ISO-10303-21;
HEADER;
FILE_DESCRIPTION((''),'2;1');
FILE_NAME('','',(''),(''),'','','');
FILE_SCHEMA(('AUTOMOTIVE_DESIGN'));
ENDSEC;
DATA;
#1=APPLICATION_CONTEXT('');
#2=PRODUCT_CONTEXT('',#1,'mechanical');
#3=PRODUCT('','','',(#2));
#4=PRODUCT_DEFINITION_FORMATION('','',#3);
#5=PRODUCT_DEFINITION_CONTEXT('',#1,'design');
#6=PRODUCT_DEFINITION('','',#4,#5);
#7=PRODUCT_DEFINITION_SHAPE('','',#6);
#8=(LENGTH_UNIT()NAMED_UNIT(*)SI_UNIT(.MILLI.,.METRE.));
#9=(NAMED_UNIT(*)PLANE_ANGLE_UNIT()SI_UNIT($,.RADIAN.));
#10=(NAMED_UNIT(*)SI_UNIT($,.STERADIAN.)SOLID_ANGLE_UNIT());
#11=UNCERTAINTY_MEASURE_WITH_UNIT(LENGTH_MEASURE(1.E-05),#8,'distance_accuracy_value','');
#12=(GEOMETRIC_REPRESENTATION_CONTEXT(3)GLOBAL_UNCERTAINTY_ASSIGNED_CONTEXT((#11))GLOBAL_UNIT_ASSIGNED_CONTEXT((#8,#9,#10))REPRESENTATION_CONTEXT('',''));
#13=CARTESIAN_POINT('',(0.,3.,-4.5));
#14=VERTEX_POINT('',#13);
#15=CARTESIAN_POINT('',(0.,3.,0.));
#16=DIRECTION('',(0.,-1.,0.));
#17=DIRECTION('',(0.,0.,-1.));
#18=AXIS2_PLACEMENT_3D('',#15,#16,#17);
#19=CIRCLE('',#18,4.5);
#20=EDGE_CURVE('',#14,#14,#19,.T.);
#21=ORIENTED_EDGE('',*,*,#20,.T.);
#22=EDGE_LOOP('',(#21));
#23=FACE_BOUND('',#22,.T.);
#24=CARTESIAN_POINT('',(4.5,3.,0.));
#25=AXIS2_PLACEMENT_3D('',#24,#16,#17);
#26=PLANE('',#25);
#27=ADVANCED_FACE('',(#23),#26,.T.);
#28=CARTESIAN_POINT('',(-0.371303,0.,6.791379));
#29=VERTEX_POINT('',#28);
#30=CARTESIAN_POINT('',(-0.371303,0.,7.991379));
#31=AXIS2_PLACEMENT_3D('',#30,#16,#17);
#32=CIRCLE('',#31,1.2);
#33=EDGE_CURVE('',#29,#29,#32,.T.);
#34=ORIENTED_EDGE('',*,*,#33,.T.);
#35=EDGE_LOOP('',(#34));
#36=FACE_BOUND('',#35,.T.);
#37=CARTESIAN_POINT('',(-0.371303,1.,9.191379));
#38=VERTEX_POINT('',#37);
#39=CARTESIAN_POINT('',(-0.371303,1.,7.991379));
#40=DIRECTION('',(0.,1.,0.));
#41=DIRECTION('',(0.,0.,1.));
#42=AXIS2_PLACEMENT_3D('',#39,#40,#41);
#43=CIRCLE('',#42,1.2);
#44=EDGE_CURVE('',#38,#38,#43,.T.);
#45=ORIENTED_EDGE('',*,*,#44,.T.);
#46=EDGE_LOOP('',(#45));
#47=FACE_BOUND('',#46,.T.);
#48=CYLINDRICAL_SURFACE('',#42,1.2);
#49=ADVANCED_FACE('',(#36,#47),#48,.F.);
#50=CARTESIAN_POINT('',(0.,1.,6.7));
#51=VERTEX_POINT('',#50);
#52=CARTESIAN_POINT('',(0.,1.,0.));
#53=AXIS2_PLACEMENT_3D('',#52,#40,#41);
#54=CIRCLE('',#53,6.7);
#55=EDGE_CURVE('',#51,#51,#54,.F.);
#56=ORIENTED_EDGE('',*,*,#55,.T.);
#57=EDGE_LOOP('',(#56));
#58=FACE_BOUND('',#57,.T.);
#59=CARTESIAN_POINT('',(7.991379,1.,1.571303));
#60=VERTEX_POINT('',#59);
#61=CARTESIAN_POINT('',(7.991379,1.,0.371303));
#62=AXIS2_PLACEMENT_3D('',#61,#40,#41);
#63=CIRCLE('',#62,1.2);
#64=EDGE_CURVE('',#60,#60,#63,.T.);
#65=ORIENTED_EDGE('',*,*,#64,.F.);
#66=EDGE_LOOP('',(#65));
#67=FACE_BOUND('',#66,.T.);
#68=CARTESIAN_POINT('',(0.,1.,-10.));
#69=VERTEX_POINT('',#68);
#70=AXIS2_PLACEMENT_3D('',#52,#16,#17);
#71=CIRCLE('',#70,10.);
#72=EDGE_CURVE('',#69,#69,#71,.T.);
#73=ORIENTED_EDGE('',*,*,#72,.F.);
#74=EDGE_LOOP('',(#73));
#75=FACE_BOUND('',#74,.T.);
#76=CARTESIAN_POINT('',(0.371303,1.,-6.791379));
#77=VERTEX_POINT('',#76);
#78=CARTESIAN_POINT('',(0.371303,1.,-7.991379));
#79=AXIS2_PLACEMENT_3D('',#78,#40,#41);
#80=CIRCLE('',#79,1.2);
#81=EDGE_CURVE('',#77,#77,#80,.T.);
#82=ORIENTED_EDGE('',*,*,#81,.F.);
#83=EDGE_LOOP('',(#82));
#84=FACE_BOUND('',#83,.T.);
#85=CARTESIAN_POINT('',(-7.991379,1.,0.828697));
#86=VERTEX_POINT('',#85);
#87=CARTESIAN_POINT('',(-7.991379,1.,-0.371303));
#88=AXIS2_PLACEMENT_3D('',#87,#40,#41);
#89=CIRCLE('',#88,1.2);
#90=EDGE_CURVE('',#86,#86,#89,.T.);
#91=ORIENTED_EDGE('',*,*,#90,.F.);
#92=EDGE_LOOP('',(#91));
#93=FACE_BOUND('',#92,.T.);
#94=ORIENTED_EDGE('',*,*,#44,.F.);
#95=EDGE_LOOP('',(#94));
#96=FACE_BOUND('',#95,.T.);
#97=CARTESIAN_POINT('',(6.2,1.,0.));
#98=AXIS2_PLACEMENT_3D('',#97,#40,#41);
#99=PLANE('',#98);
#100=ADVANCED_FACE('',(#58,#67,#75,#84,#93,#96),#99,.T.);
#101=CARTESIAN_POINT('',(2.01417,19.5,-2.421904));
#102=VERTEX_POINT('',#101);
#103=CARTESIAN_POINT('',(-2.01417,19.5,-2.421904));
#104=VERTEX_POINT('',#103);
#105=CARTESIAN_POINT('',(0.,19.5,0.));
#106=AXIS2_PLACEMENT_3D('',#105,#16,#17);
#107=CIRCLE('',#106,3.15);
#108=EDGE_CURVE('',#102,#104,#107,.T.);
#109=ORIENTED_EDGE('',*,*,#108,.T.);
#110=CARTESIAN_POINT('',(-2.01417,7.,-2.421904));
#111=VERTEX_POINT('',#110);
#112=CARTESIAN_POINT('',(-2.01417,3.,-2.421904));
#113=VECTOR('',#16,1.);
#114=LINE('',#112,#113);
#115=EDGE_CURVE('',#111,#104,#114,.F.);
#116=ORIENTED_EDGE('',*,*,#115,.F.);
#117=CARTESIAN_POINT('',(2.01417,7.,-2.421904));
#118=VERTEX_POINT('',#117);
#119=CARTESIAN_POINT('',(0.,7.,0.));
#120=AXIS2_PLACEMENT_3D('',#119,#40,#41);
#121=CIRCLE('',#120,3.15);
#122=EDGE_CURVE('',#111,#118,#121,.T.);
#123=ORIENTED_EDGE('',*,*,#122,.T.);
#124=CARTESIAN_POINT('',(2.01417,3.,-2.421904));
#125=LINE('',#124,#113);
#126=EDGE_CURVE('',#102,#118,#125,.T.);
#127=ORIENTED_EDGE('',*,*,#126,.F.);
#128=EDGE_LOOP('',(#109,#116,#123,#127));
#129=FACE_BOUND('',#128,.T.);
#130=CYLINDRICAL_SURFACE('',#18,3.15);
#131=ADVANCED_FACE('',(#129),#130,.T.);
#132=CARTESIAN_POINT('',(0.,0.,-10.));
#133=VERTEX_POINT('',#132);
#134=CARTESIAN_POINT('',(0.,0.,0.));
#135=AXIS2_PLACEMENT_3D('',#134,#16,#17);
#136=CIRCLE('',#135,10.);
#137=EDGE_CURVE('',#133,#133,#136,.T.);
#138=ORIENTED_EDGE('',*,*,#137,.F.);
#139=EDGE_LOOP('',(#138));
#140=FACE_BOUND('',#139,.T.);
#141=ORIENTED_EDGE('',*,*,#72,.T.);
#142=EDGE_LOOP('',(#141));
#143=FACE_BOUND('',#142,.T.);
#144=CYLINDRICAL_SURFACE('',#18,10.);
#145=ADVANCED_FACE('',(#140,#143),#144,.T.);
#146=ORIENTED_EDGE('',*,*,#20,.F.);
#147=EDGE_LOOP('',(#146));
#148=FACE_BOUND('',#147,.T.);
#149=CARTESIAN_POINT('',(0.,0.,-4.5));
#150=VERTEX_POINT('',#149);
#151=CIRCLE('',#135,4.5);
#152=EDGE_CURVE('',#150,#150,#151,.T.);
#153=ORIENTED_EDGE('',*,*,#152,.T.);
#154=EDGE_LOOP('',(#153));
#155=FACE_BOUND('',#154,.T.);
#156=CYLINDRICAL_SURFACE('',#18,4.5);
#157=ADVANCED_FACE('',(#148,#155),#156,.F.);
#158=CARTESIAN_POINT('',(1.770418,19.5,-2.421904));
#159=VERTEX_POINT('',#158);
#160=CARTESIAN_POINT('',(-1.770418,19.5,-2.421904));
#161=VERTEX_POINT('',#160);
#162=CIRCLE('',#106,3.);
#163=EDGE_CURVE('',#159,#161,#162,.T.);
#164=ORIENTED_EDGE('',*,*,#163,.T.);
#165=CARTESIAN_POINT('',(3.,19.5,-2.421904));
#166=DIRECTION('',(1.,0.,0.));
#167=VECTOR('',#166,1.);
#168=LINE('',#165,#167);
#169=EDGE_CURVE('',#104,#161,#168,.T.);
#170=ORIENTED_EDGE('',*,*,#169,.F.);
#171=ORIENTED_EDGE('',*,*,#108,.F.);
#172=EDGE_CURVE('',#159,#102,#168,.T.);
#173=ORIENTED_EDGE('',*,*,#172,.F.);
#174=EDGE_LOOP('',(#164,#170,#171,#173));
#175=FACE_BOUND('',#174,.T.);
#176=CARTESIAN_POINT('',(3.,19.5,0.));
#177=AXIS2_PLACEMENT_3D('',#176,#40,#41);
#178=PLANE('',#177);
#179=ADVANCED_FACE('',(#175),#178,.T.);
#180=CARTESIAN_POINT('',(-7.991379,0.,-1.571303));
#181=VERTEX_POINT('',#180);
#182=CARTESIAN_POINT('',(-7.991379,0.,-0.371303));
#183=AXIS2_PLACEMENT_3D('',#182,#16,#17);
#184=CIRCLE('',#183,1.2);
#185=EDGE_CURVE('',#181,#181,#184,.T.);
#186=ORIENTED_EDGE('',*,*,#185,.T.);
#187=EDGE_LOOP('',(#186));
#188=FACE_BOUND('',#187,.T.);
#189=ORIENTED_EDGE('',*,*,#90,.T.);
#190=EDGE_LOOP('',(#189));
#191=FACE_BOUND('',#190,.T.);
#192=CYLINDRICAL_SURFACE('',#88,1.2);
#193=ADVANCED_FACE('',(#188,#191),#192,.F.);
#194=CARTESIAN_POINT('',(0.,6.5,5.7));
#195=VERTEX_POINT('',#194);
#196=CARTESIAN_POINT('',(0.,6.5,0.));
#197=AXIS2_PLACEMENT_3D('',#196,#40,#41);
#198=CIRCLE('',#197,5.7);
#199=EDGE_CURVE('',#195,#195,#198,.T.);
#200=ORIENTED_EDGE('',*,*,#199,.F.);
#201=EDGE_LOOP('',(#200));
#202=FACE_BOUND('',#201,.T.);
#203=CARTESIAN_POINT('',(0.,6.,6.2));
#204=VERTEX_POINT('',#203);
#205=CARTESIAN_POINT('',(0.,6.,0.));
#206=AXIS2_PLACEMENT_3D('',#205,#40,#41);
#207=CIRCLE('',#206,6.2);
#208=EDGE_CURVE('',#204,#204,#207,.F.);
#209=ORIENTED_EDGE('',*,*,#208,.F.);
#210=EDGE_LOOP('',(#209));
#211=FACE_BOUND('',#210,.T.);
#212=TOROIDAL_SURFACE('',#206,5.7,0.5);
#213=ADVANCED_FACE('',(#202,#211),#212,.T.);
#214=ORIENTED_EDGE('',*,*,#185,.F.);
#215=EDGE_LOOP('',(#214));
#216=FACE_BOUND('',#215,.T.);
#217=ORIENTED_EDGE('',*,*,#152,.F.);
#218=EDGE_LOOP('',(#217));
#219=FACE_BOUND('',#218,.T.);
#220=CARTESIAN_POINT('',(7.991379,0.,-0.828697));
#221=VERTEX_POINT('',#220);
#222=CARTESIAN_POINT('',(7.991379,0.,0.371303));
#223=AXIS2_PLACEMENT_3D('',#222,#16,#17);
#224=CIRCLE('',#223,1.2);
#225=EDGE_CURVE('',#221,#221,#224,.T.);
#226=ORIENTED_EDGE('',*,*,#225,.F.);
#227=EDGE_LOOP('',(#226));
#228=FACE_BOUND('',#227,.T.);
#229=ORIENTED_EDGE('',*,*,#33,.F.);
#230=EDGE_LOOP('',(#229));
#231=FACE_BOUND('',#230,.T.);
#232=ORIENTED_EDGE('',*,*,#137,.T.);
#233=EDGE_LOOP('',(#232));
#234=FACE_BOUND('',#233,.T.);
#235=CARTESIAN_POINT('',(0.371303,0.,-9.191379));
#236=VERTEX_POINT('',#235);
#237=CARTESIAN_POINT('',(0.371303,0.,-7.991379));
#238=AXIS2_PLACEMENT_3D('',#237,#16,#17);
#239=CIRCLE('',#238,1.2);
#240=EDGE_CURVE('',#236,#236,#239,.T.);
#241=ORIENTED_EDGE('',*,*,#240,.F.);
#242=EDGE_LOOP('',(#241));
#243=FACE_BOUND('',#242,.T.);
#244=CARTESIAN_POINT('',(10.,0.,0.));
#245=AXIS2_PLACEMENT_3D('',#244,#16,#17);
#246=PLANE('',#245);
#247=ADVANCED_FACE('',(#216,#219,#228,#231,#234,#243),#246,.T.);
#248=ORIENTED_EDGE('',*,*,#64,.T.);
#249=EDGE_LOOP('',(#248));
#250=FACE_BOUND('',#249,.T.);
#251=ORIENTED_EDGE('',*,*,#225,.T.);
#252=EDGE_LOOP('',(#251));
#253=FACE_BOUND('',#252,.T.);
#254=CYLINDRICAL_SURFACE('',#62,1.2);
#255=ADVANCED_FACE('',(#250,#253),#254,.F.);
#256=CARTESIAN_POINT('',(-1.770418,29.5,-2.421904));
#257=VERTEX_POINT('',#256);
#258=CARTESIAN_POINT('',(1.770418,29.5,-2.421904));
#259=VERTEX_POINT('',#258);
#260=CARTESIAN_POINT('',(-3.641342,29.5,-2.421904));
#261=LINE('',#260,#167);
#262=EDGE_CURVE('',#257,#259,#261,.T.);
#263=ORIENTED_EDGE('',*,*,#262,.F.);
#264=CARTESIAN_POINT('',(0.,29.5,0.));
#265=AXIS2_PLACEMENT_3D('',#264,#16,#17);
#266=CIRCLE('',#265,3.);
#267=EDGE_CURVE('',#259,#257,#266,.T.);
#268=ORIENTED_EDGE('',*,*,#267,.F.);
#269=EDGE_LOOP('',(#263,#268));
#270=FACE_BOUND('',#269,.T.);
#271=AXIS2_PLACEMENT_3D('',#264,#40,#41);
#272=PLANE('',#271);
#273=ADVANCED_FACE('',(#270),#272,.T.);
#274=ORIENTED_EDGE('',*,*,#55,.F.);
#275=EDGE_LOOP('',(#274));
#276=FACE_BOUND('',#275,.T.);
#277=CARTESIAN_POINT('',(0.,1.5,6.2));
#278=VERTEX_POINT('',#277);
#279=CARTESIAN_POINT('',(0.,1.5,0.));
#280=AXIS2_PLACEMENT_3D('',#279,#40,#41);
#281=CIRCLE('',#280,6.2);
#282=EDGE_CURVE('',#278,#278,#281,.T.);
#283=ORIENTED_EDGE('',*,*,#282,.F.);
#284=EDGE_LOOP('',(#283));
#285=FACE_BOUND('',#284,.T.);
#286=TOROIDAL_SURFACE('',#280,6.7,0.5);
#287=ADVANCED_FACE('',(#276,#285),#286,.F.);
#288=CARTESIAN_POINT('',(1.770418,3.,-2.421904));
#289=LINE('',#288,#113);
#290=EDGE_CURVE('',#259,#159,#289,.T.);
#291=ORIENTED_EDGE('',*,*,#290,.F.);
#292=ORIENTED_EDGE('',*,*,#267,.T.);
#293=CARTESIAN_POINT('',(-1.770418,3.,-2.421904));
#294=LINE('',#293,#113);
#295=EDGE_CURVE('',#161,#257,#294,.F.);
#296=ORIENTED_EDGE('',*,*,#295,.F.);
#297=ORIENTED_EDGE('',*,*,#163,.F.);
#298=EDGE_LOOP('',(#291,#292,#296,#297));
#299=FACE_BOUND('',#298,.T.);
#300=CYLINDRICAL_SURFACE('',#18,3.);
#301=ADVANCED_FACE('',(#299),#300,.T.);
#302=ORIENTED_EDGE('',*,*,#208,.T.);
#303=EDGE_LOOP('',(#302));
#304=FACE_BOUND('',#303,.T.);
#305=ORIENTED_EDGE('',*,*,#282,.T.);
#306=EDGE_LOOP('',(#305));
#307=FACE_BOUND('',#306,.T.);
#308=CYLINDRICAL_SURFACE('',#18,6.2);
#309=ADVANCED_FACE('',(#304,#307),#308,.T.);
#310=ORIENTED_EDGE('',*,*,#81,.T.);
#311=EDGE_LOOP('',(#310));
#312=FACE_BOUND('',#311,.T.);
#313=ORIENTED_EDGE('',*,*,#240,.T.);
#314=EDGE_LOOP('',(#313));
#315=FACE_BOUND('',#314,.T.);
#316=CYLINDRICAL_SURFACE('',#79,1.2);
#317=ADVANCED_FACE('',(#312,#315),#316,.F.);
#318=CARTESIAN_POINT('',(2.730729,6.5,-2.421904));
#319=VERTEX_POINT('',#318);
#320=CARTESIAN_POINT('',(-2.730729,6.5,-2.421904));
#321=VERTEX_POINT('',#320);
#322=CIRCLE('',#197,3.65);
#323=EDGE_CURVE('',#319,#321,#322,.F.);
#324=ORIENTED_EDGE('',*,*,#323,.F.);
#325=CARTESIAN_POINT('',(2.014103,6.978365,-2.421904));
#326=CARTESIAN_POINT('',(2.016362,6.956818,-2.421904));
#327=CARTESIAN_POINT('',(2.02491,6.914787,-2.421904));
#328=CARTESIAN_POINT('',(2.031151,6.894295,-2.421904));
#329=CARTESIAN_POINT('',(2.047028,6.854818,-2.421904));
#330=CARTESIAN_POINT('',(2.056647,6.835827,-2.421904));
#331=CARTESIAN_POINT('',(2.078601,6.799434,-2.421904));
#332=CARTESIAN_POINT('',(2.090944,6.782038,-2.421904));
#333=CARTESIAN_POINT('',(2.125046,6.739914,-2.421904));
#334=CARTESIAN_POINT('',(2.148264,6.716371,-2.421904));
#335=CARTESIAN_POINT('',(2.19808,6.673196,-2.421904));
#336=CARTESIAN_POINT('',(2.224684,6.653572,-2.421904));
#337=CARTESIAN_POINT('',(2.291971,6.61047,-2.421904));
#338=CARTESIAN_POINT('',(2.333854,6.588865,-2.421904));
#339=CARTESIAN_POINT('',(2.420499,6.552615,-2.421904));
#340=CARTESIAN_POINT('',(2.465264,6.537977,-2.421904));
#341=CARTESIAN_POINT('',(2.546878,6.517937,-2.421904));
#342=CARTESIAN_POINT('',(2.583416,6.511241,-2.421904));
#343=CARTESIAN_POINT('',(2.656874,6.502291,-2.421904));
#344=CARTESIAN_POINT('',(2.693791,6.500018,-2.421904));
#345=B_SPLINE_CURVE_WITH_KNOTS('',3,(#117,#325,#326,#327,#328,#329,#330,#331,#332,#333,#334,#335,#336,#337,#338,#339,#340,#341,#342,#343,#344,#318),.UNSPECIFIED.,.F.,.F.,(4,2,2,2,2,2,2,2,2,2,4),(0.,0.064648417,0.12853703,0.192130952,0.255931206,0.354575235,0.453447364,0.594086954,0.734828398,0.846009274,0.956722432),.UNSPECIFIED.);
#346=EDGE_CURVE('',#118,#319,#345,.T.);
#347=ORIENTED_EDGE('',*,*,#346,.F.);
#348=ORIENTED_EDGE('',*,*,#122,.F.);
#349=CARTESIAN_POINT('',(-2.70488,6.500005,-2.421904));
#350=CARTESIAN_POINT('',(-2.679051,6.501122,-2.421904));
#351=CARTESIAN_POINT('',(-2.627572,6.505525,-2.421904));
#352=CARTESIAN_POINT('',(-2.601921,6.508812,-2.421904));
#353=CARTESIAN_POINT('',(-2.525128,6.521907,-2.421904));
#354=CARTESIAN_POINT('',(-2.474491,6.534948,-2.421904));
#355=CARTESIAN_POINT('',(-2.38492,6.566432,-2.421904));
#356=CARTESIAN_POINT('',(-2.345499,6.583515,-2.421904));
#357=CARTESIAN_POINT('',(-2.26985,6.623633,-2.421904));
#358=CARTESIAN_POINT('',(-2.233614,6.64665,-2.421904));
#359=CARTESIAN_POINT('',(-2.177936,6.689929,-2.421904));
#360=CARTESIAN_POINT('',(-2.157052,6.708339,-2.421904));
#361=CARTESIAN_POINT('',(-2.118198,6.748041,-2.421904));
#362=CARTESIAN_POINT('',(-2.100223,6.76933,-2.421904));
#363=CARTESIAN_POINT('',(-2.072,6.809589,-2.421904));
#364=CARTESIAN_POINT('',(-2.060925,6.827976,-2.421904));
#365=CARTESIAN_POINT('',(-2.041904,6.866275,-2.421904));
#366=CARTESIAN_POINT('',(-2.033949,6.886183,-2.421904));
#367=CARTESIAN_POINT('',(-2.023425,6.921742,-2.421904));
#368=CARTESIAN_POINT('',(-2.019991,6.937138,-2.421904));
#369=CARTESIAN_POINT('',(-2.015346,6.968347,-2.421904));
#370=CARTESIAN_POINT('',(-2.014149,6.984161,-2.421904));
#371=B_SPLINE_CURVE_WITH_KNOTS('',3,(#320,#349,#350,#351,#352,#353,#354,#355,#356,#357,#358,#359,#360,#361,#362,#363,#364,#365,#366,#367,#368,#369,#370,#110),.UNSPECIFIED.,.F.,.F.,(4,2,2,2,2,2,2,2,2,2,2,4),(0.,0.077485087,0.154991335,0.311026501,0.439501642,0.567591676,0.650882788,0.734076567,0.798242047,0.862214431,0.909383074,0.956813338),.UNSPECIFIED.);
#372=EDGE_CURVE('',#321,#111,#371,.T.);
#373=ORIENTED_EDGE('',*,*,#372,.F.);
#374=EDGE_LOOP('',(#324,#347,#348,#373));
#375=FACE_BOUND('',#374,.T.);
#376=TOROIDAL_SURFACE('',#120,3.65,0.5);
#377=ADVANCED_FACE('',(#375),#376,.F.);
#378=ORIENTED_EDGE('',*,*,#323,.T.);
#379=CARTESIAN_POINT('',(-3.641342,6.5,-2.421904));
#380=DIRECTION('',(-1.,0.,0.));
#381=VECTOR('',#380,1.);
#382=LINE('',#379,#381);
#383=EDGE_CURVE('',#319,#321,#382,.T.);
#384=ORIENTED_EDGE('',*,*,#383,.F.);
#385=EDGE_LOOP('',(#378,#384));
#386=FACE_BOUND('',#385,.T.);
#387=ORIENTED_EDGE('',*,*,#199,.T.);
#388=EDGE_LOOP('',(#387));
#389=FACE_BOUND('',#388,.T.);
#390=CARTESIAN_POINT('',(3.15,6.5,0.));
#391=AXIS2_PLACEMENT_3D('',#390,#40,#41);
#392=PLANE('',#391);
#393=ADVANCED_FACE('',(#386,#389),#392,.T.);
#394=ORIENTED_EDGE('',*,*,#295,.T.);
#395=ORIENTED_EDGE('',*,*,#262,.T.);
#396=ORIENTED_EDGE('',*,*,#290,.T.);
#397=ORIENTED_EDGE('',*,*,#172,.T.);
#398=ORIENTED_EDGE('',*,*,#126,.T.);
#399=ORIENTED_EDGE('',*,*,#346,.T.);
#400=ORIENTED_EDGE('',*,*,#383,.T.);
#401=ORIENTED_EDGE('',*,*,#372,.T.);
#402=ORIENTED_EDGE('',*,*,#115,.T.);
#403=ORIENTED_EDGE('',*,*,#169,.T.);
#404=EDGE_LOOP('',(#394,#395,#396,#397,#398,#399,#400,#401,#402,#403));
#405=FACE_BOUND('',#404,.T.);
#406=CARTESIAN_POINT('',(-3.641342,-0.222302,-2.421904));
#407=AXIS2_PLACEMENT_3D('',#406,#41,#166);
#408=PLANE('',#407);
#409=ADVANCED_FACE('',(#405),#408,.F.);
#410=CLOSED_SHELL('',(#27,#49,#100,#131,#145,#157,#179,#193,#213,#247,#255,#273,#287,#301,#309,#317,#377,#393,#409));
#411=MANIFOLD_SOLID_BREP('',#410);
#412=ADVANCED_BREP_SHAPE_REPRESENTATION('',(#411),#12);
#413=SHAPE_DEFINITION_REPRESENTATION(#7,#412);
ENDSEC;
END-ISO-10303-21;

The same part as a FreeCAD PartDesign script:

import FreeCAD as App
import Part
import Sketcher

V = App.Vector
Q = App.Units.Quantity


def edges_at(feature, points):
    """Names of the edges that pass closest to the given points."""
    edges = feature.Shape.Edges
    near = lambda p: min(range(len(edges)), key=lambda i: edges[i].distToShape(Part.Vertex(*p))[0])
    return sorted({f"Edge{near(p) + 1}" for p in points})

doc = App.newDocument("Part")
body = doc.addObject("PartDesign::Body", "Body")

sketch1 = body.newObject("Sketcher::SketchObject", "Sketch")
sketch1.AttachmentSupport = (doc.getObject("XY_Plane"), [""])
sketch1.MapMode = "FlatFace"
sketch1.addGeometry([
    Part.LineSegment(V(3, 29.5, 0), V(0, 29.5, 0)),
    Part.LineSegment(V(0, 29.5, 0), V(0, 3, 0)),
    Part.LineSegment(V(0, 3, 0), V(4.5, 3, 0)),
    Part.LineSegment(V(4.5, 3, 0), V(4.5, 0, 0)),
    Part.LineSegment(V(4.5, 0, 0), V(10, 0, 0)),
    Part.LineSegment(V(10, 0, 0), V(10, 1, 0)),
    Part.LineSegment(V(10, 1, 0), V(6.2, 1, 0)),
    Part.LineSegment(V(6.2, 1, 0), V(6.2, 6.5, 0)),
    Part.LineSegment(V(6.2, 6.5, 0), V(3.15, 6.5, 0)),
    Part.LineSegment(V(3.15, 6.5, 0), V(3.15, 19.5, 0)),
    Part.LineSegment(V(3.15, 19.5, 0), V(3, 19.5, 0)),
    Part.LineSegment(V(3, 19.5, 0), V(3, 29.5, 0)),
], False)
sketch1.addConstraint([
    Sketcher.Constraint("Coincident", 0, 2, 1, 1),
    Sketcher.Constraint("Coincident", 1, 2, 2, 1),
    Sketcher.Constraint("Coincident", 2, 2, 3, 1),
    Sketcher.Constraint("Coincident", 3, 2, 4, 1),
    Sketcher.Constraint("Coincident", 4, 2, 5, 1),
    Sketcher.Constraint("Coincident", 5, 2, 6, 1),
    Sketcher.Constraint("Coincident", 6, 2, 7, 1),
    Sketcher.Constraint("Coincident", 7, 2, 8, 1),
    Sketcher.Constraint("Coincident", 8, 2, 9, 1),
    Sketcher.Constraint("Coincident", 9, 2, 10, 1),
    Sketcher.Constraint("Coincident", 10, 2, 11, 1),
    Sketcher.Constraint("Coincident", 11, 2, 0, 1),
    Sketcher.Constraint("Horizontal", 0),
    Sketcher.Constraint("Vertical", 1),
    Sketcher.Constraint("Horizontal", 2),
    Sketcher.Constraint("Vertical", 3),
    Sketcher.Constraint("Horizontal", 4),
    Sketcher.Constraint("Vertical", 5),
    Sketcher.Constraint("Horizontal", 6),
    Sketcher.Constraint("Vertical", 7),
    Sketcher.Constraint("Horizontal", 8),
    Sketcher.Constraint("Vertical", 9),
    Sketcher.Constraint("Horizontal", 10),
    Sketcher.Constraint("Vertical", 11),
    Sketcher.Constraint("PointOnObject", 0, 2, -2),
    Sketcher.Constraint("PointOnObject", 3, 2, -1),
    Sketcher.Constraint("Equal", 0, 3),
    Sketcher.Constraint("Equal", 4, 7),
    Sketcher.Constraint("DistanceX", 0, 2, 0, 1, Q("3 mm")),
    Sketcher.Constraint("DistanceY", 5, 1, 5, 2, Q("1 mm")),
    Sketcher.Constraint("DistanceY", 9, 1, 9, 2, Q("13 mm")),
    Sketcher.Constraint("DistanceY", 11, 1, 11, 2, Q("10 mm")),
    Sketcher.Constraint("DistanceX", 2, 1, 2, 2, Q("4.5 mm")),
    Sketcher.Constraint("DistanceX", 4, 1, 4, 2, Q("5.5 mm")),
    Sketcher.Constraint("DistanceX", 6, 2, 6, 1, Q("3.8 mm")),
    Sketcher.Constraint("DistanceX", 8, 2, 8, 1, Q("3.05 mm")),
])
revolution = body.newObject("PartDesign::Revolution", "Revolution")
revolution.Profile = sketch1
revolution.ReferenceAxis = (sketch1, ["V_Axis"])
revolution.Angle = 360

sketch2 = body.newObject("Sketcher::SketchObject", "Sketch001")
sketch2.AttachmentSupport = (doc.getObject("XZ_Plane"), [""])
sketch2.MapMode = "FlatFace"
sketch2.AttachmentOffset = App.Placement(V(0, 0, -29.5), App.Rotation())
sketch2.addGeometry([
    Part.LineSegment(V(-3.641342, -3.807953, 0), V(-3.641342, -2.421904, 0)),
    Part.LineSegment(V(-3.641342, -2.421904, 0), V(2.936515, -2.421904, 0)),
    Part.LineSegment(V(2.936515, -2.421904, 0), V(2.936515, -3.807953, 0)),
    Part.LineSegment(V(2.936515, -3.807953, 0), V(-3.641342, -3.807953, 0)),
], False)
sketch2.addConstraint([
    Sketcher.Constraint("Coincident", 0, 2, 1, 1),
    Sketcher.Constraint("Coincident", 1, 2, 2, 1),
    Sketcher.Constraint("Coincident", 2, 2, 3, 1),
    Sketcher.Constraint("Coincident", 3, 2, 0, 1),
    Sketcher.Constraint("Vertical", 0),
    Sketcher.Constraint("Horizontal", 1),
    Sketcher.Constraint("Vertical", 2),
    Sketcher.Constraint("Horizontal", 3),
    Sketcher.Constraint("DistanceY", 0, 1, 0, 2, Q("1.386049 mm")),
    Sketcher.Constraint("DistanceX", 1, 1, 1, 2, Q("6.577858 mm")),
    Sketcher.Constraint("DistanceX", 0, 2, -1, 1, Q("3.641342 mm")),
    Sketcher.Constraint("DistanceY", 0, 2, -1, 1, Q("2.421904 mm")),
])
pocket1 = body.newObject("PartDesign::Pocket", "Pocket")
pocket1.Profile = sketch2
pocket1.Length = 23
pocket1.Reversed = True

sketch3 = body.newObject("Sketcher::SketchObject", "Sketch002")
sketch3.AttachmentSupport = (doc.getObject("XZ_Plane"), [""])
sketch3.MapMode = "FlatFace"
sketch3.AttachmentOffset = App.Placement(V(0, 0, -1), App.Rotation())
sketch3.addGeometry(Part.Circle(V(0.371303, -7.991379, 0), V(0, 0, 1), 1.2), False)
sketch3.addConstraint([
    Sketcher.Constraint("Diameter", 0, Q("2.4 mm")),
    Sketcher.Constraint("DistanceY", 0, 3, -1, 1, Q("7.991379 mm")),
    Sketcher.Constraint("DistanceX", -1, 1, 0, 3, Q("0.371303 mm")),
])
doc.recompute()
hole = body.newObject("PartDesign::Hole", "Hole")
hole.Profile = sketch3
hole.ThreadType = "None"
hole.Diameter = 2.4
hole.DepthType = "Dimension"
hole.Depth = 1.001
hole.DrillPoint = "Flat"
hole.Reversed = True
doc.recompute()

polarpattern = body.newObject("PartDesign::PolarPattern", "PolarPattern")
polarpattern.Originals = [hole]
polarpattern.Axis = (doc.getObject("Y_Axis"), [""])
polarpattern.Angle = 360
polarpattern.Occurrences = 4
body.Tip = polarpattern
doc.recompute()

fillet = body.newObject("PartDesign::Fillet", "Fillet")
fillet.Base = (polarpattern, edges_at(polarpattern, [(-6.2, 1, 0), (-6.2, 6.5, 0), (0, 6.5, 3.15)]))
fillet.Radius = 0.5

doc.recompute()
